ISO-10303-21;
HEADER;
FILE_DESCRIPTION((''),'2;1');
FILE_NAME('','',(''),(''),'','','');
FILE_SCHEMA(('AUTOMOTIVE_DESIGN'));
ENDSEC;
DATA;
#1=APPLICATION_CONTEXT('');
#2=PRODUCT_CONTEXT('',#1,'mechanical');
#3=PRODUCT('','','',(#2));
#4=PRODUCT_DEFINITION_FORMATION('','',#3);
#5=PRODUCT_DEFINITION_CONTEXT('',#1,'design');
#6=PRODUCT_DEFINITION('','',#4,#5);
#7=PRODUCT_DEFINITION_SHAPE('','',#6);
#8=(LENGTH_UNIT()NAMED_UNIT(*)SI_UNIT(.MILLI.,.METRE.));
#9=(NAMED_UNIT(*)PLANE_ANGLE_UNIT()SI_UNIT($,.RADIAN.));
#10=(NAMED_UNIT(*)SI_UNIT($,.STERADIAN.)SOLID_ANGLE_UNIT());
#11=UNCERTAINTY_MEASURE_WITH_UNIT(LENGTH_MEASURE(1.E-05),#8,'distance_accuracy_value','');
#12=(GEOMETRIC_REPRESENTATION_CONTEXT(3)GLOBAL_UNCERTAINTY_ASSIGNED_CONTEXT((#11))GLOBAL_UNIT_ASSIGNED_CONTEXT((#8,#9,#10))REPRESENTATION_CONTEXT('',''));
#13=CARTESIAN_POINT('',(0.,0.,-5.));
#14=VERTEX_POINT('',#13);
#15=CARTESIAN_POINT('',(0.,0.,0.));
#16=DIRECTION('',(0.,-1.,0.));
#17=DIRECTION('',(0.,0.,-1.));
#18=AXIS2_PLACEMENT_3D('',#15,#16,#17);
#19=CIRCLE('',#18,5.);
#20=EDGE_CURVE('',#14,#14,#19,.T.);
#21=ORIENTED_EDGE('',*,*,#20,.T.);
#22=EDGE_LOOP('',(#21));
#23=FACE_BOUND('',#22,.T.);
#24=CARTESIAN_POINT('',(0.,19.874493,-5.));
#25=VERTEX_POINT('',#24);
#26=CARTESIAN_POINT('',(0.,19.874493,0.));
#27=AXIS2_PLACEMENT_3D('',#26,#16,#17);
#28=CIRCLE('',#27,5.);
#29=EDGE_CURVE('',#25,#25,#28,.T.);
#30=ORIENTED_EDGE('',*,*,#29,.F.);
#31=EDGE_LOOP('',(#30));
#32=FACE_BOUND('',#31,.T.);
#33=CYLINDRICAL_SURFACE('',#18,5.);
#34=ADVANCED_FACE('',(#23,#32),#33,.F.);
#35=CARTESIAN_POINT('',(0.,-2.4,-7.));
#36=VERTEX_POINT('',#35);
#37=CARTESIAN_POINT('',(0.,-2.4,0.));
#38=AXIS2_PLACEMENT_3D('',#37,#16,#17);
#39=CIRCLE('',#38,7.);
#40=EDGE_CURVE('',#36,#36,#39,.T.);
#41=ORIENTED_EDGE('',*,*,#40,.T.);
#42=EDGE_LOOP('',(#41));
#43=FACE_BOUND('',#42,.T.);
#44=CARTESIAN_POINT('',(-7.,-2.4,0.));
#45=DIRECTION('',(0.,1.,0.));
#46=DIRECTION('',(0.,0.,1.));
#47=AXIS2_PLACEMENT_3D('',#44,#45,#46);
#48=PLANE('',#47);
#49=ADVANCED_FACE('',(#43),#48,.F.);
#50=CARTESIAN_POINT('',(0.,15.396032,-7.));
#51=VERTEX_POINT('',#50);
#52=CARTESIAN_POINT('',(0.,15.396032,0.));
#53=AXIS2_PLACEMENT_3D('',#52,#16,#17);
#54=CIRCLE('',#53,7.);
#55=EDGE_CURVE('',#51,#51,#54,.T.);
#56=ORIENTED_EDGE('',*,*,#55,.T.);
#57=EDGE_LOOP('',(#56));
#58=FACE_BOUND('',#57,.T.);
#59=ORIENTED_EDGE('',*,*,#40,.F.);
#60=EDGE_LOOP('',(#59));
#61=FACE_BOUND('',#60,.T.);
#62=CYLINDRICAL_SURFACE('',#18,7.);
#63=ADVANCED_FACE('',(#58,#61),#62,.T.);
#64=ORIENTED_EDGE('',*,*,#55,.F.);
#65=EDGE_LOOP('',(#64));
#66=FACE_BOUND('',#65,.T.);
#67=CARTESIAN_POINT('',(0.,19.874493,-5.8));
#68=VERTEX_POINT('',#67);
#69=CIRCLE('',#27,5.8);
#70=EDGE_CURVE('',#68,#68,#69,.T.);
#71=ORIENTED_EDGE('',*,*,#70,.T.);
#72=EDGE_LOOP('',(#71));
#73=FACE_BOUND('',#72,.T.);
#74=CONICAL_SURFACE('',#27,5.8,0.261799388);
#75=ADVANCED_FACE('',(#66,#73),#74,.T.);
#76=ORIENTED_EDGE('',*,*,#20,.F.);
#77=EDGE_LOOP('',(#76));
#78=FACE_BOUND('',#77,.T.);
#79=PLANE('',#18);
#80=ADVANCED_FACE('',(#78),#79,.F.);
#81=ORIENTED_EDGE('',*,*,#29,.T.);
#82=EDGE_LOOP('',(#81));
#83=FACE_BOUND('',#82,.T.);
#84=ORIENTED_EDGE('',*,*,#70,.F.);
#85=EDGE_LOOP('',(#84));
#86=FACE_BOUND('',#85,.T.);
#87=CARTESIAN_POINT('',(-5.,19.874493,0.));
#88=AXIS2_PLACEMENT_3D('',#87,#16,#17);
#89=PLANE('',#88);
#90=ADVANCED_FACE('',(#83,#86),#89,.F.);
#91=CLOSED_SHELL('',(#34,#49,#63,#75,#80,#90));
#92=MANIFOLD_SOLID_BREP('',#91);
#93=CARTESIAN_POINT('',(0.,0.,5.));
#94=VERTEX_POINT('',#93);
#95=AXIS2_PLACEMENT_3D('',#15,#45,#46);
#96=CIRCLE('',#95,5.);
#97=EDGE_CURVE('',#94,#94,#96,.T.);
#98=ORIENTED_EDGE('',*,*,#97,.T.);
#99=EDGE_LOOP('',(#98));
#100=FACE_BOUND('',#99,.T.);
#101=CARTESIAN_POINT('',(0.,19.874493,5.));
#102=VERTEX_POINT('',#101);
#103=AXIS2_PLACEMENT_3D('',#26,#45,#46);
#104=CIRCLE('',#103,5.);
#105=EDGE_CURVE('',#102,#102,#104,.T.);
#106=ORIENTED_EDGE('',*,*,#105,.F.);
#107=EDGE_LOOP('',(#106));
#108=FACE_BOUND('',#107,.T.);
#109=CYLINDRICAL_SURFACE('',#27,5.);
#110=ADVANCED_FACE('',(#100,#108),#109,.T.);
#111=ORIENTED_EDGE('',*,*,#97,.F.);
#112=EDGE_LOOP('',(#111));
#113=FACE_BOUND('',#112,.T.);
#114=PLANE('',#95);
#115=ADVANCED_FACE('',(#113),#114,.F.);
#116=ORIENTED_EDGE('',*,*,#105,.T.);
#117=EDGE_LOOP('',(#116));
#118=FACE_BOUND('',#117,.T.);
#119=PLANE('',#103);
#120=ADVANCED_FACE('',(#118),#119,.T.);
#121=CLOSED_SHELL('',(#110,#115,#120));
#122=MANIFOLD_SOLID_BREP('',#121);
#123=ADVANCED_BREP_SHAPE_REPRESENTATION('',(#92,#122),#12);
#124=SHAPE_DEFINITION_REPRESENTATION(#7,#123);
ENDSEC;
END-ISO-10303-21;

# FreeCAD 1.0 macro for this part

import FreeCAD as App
import Part
import Sketcher
Q = App.Units.Quantity

doc = App.newDocument("Part")
body = doc.addObject("PartDesign::Body", "Body")

sketch1 = body.newObject("Sketcher::SketchObject", "Sketch")
sketch1.AttachmentSupport = (doc.getObject("XZ_Plane"), [""])
sketch1.MapMode = "FlatFace"
sketch1.addGeometry(Part.Circle(App.Vector(0, 0, 0), App.Vector(0, 0, 1), 5), False)
sketch1.addConstraint(Sketcher.Constraint("Coincident", 0, 3, -1, 1))
sketch1.addConstraint(Sketcher.Constraint("Diameter", 0, 10.0))
pad1 = body.newObject("PartDesign::Pad", "Pad")
pad1.Profile = sketch1
pad1.Length = 19.874493
pad1.Reversed = True
body2 = doc.addObject("PartDesign::Body", "Body001")

sketch2 = body2.newObject("Sketcher::SketchObject", "Sketch001")
sketch2.AttachmentSupport = (doc.getObject("XY_Plane001"), [""])
sketch2.MapMode = "FlatFace"
sketch2.addGeometry(Part.LineSegment(App.Vector(0, 0, 0), App.Vector(-5, 0, 0)), False)
sketch2.addGeometry(Part.LineSegment(App.Vector(-5, 0, 0), App.Vector(-5, 19.9, 0)), False)
sketch2.addGeometry(Part.LineSegment(App.Vector(-5, 19.9, 0), App.Vector(-5.8, 19.9, 0)), False)
sketch2.addGeometry(Part.LineSegment(App.Vector(-5.8, 19.9, 0), App.Vector(-7, 15.4, 0)), False)
sketch2.addGeometry(Part.LineSegment(App.Vector(-7, 15.4, 0), App.Vector(-7, -2.4, 0)), False)
sketch2.addGeometry(Part.LineSegment(App.Vector(-7, -2.4, 0), App.Vector(0, -2.4, 0)), False)
sketch2.addGeometry(Part.LineSegment(App.Vector(0, -2.4, 0), App.Vector(0, 0, 0)), False)
sketch2.addConstraint(Sketcher.Constraint("Coincident", 0, 2, 1, 1))
sketch2.addConstraint(Sketcher.Constraint("Coincident", 1, 2, 2, 1))
sketch2.addConstraint(Sketcher.Constraint("Coincident", 2, 2, 3, 1))
sketch2.addConstraint(Sketcher.Constraint("Coincident", 3, 2, 4, 1))
sketch2.addConstraint(Sketcher.Constraint("Coincident", 4, 2, 5, 1))
sketch2.addConstraint(Sketcher.Constraint("Coincident", 5, 2, 6, 1))
sketch2.addConstraint(Sketcher.Constraint("Coincident", 6, 2, 0, 1))
sketch2.addConstraint(Sketcher.Constraint("Horizontal", 0))
sketch2.addConstraint(Sketcher.Constraint("Vertical", 1))
sketch2.addConstraint(Sketcher.Constraint("Horizontal", 2))
sketch2.addConstraint(Sketcher.Constraint("Vertical", 4))
sketch2.addConstraint(Sketcher.Constraint("Horizontal", 5))
sketch2.addConstraint(Sketcher.Constraint("Vertical", 6))
sketch2.addConstraint(Sketcher.Constraint("Coincident", 6, 2, -1, 1))
sketch2.addConstraint(Sketcher.Constraint("DistanceX", 0, 2, 0, 1, 5.0))
sketch2.addConstraint(Sketcher.Constraint("DistanceX", 5, 1, 5, 2, 7.0))
sketch2.addConstraint(Sketcher.Constraint("Angle", 3, Q("-105 deg")))
sketch2.addConstraint(Sketcher.Constraint("DistanceX", 2, 2, 2, 1, 0.8))
sketch2.addConstraint(Sketcher.Constraint("DistanceY", 6, 1, 6, 2, 2.4))
sketch2.addConstraint(Sketcher.Constraint("DistanceY", 1, 1, 1, 2, 19.874493))
revolution = body2.newObject("PartDesign::Revolution", "Revolution")
revolution.Profile = sketch2
revolution.ReferenceAxis = (sketch2, ["V_Axis"])
revolution.Angle = 360

doc.recompute()
